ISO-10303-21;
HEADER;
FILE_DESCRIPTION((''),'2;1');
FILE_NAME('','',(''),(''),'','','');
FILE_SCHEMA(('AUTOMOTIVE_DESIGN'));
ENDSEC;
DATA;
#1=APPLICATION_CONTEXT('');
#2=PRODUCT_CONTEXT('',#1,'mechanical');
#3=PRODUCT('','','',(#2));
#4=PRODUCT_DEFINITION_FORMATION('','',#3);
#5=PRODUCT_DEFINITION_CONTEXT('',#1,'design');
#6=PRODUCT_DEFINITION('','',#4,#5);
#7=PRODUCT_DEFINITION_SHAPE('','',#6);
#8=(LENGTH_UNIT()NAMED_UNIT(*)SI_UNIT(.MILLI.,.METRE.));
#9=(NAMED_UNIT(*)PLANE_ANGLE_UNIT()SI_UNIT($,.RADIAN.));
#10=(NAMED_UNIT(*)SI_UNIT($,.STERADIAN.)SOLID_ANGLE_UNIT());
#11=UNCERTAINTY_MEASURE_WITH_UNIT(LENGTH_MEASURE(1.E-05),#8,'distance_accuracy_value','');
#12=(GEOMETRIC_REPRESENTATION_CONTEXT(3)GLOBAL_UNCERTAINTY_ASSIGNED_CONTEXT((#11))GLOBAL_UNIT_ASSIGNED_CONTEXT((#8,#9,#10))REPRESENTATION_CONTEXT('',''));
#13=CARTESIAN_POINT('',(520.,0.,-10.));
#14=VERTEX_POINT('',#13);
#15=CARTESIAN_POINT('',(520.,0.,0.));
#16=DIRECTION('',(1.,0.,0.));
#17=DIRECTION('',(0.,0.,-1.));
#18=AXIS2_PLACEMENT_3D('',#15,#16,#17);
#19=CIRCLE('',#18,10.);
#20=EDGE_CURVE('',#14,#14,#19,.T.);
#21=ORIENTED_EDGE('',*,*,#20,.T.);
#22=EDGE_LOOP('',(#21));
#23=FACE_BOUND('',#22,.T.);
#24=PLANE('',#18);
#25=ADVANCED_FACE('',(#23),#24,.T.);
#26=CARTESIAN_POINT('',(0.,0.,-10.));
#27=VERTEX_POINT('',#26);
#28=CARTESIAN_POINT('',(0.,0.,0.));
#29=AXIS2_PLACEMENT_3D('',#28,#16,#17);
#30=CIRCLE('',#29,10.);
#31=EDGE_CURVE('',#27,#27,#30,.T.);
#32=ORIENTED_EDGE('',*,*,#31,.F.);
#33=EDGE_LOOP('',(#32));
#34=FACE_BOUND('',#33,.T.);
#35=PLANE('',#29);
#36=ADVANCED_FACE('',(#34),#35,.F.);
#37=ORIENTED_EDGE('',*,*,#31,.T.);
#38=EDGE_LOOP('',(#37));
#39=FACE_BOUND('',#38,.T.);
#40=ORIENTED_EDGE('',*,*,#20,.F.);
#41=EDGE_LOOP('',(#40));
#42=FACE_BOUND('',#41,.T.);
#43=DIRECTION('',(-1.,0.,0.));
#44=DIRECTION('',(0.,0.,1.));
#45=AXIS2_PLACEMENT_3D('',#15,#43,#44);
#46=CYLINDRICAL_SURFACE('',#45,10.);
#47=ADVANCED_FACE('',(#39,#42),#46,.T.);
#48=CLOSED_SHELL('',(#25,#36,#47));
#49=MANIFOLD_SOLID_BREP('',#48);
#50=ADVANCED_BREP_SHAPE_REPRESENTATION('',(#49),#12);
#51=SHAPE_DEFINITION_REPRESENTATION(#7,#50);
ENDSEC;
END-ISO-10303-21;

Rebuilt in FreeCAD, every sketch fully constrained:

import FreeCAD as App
import Part
import Sketcher

doc = App.newDocument("Part")
body = doc.addObject("PartDesign::Body", "Body")

sketch1 = body.newObject("Sketcher::SketchObject", "Sketch")
sketch1.AttachmentSupport = (doc.getObject("YZ_Plane"), [""])
sketch1.MapMode = "FlatFace"
sketch1.addGeometry(Part.Circle(App.Vector(0, 0, 0), App.Vector(0, 0, 1), 10), False)
sketch1.addConstraint([
    Sketcher.Constraint("Coincident", 0, 3, -1, 1),
    Sketcher.Constraint("Diameter", 0, 20.0),
])
pad1 = body.newObject("PartDesign::Pad", "Pad")
pad1.Profile = sketch1
pad1.Length = 520

doc.recompute()
